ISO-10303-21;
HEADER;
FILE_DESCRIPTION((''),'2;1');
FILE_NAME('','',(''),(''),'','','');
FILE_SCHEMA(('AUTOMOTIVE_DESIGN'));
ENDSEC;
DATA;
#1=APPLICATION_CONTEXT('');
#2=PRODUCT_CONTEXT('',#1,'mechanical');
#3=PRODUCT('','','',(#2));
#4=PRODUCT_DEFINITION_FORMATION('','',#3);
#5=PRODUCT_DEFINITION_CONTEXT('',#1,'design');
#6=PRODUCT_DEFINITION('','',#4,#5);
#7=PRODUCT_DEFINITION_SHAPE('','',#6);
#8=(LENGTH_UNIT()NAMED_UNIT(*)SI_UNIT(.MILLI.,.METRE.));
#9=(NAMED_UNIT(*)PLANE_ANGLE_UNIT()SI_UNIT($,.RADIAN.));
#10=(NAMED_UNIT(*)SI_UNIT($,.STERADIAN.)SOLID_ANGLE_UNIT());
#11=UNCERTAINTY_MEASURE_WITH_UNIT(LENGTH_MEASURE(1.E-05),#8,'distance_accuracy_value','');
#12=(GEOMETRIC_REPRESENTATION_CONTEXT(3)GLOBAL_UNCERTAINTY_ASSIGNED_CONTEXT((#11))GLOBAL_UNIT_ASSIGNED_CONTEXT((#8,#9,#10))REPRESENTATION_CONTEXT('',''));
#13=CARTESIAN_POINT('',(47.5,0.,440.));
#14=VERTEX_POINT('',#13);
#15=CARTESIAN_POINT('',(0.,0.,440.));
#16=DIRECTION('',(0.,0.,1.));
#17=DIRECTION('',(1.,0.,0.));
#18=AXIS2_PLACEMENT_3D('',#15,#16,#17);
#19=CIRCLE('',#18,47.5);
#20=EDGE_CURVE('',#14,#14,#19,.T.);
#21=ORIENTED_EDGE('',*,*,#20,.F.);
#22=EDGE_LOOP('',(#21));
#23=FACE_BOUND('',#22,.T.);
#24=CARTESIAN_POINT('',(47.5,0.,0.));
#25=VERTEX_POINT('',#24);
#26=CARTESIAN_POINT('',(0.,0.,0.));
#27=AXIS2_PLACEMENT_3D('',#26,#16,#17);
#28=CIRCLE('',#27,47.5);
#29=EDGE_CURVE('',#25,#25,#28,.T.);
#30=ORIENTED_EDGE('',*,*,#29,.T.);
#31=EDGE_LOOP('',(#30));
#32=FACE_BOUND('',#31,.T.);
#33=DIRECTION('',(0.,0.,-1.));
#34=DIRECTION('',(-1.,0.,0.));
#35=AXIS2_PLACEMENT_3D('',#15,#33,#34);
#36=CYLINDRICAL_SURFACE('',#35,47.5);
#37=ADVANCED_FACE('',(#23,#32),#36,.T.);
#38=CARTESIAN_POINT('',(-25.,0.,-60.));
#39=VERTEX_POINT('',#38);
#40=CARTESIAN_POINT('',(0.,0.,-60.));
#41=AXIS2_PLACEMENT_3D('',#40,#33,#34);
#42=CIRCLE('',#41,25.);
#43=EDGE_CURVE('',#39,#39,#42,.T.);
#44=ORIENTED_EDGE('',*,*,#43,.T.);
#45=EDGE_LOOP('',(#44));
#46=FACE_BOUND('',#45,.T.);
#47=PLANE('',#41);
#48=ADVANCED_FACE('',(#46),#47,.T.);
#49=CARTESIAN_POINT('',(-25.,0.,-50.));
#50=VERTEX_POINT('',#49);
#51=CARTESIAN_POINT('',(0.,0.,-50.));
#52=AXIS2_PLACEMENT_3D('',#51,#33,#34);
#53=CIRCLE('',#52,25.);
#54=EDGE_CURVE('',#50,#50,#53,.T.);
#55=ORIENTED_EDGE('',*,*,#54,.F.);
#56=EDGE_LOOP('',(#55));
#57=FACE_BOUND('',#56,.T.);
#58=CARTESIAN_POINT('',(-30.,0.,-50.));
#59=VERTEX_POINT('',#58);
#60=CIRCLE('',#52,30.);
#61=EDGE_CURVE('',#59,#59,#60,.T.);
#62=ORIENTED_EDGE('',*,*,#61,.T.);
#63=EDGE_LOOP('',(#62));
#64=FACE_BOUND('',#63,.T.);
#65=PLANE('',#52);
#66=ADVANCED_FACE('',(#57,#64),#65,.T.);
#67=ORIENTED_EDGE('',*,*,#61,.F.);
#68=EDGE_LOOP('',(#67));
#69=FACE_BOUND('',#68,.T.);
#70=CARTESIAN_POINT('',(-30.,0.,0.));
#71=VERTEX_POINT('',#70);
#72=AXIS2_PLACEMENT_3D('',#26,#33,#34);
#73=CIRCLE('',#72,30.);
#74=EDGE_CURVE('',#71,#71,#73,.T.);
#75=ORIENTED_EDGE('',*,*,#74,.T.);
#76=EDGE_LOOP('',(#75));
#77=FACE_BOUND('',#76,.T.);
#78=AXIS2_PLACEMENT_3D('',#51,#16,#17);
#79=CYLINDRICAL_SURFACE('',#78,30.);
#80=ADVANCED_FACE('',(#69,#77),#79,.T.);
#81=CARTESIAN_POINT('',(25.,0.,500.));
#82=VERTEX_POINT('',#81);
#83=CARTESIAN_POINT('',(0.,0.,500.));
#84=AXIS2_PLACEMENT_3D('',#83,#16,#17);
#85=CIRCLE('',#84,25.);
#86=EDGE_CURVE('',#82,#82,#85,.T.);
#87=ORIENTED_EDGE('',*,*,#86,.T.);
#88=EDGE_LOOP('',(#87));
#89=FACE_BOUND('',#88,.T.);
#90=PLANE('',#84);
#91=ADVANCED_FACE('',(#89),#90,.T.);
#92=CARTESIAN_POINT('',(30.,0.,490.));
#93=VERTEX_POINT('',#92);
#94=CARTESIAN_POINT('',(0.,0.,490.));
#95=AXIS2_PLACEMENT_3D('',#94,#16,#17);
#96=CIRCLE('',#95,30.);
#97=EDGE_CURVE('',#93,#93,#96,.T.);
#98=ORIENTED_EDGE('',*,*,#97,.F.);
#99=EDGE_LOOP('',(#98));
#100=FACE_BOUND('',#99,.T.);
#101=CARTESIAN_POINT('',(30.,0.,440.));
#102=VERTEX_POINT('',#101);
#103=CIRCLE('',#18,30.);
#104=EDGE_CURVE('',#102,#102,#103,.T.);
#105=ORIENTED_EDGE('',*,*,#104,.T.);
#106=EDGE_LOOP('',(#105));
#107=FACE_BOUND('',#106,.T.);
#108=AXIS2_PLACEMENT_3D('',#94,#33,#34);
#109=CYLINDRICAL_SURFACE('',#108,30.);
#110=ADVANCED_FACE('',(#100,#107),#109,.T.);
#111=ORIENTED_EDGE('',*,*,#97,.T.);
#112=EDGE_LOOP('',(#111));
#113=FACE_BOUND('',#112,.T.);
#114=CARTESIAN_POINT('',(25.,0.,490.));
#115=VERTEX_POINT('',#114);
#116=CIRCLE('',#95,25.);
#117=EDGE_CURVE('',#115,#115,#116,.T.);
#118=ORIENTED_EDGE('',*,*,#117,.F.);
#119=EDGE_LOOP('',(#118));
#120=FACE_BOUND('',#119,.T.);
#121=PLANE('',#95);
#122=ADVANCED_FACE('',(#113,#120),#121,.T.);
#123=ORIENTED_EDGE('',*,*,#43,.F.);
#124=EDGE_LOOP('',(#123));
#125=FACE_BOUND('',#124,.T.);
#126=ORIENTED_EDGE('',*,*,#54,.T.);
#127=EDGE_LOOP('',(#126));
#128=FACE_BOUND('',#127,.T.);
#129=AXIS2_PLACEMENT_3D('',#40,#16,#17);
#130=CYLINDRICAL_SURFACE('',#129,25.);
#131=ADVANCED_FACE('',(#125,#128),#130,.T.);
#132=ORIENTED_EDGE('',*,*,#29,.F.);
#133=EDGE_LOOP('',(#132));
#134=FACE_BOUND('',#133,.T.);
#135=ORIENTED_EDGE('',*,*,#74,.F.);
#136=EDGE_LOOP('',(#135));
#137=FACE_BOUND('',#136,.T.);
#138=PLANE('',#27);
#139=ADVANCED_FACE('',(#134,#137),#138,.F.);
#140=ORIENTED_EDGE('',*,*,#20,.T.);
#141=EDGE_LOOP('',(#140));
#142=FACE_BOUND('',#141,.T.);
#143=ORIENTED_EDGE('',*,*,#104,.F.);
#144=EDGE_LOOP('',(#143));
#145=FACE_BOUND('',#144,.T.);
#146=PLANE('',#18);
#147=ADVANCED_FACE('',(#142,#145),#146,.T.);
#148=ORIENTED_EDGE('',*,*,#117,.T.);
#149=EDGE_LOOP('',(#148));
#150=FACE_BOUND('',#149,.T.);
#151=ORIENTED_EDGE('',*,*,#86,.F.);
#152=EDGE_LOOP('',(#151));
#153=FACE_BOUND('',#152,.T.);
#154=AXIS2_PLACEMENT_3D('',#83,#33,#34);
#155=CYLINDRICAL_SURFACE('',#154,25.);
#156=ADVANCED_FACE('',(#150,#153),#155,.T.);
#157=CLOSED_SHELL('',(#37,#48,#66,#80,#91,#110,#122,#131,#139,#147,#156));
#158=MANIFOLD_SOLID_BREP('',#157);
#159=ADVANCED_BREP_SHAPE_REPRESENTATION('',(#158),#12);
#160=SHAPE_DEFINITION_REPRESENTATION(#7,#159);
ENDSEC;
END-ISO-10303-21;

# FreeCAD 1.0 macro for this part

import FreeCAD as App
import Part
import Sketcher
from FreeCAD import Vector
Q = App.Units.Quantity

doc = App.newDocument("Part")
body = doc.addObject("PartDesign::Body", "Body")

# Sketch on XY plane
sketch1 = body.newObject("Sketcher::SketchObject", "Sketch")
sketch1.AttachmentSupport = (doc.getObject("XY_Plane"), [""])
sketch1.MapMode = "FlatFace"
sketch1.addGeometry(Part.Circle(Vector(0, 0, 0), Vector(0, 0, 1), 47.5), False)
sketch1.addConstraint([
    Sketcher.Constraint("Coincident", 0, 3, -1, 1),
    Sketcher.Constraint("Diameter", 0, Q("95 mm")),
])
pad1 = body.newObject("PartDesign::Pad", "Pad")
pad1.Profile = sketch1
pad1.Length = 440

# Sketch on XY plane
sketch2 = body.newObject("Sketcher::SketchObject", "Sketch001")
sketch2.AttachmentSupport = (doc.getObject("XY_Plane"), [""])
sketch2.MapMode = "FlatFace"
sketch2.addGeometry(Part.Circle(Vector(0, 0, 0), Vector(0, 0, 1), 30), False)
sketch2.addConstraint([
    Sketcher.Constraint("Coincident", 0, 3, -1, 1),
    Sketcher.Constraint("Diameter", 0, Q("60 mm")),
])
pad2 = body.newObject("PartDesign::Pad", "Pad001")
pad2.Profile = sketch2
pad2.Length = 50
pad2.Reversed = True

# Sketch on XY plane
sketch3 = body.newObject("Sketcher::SketchObject", "Sketch002")
sketch3.AttachmentSupport = (doc.getObject("XY_Plane"), [""])
sketch3.MapMode = "FlatFace"
sketch3.AttachmentOffset = App.Placement(Vector(0, 0, 440), App.Rotation())
sketch3.addGeometry(Part.Circle(Vector(0, 0, 0), Vector(0, 0, 1), 30), False)
sketch3.addConstraint([
    Sketcher.Constraint("Coincident", 0, 3, -1, 1),
    Sketcher.Constraint("Diameter", 0, Q("60 mm")),
])
pad3 = body.newObject("PartDesign::Pad", "Pad002")
pad3.Profile = sketch3
pad3.Length = 50

# Sketch on XY plane
sketch4 = body.newObject("Sketcher::SketchObject", "Sketch003")
sketch4.AttachmentSupport = (doc.getObject("XY_Plane"), [""])
sketch4.MapMode = "FlatFace"
sketch4.AttachmentOffset = App.Placement(Vector(0, 0, 490), App.Rotation())
sketch4.addGeometry(Part.Circle(Vector(0, 0, 0), Vector(0, 0, 1), 25), False)
sketch4.addConstraint([
    Sketcher.Constraint("Coincident", 0, 3, -1, 1),
    Sketcher.Constraint("Diameter", 0, Q("50 mm")),
])
pad4 = body.newObject("PartDesign::Pad", "Pad003")
pad4.Profile = sketch4
pad4.Length = 10

# Sketch on XY plane
sketch5 = body.newObject("Sketcher::SketchObject", "Sketch004")
sketch5.AttachmentSupport = (doc.getObject("XY_Plane"), [""])
sketch5.MapMode = "FlatFace"
sketch5.AttachmentOffset = App.Placement(Vector(0, 0, -50), App.Rotation())
sketch5.addGeometry(Part.Circle(Vector(0, 0, 0), Vector(0, 0, 1), 25), False)
sketch5.addConstraint([
    Sketcher.Constraint("Coincident", 0, 3, -1, 1),
    Sketcher.Constraint("Diameter", 0, Q("50 mm")),
])
pad5 = body.newObject("PartDesign::Pad", "Pad004")
pad5.Profile = sketch5
pad5.Length = 10
pad5.Reversed = True

doc.recompute()
